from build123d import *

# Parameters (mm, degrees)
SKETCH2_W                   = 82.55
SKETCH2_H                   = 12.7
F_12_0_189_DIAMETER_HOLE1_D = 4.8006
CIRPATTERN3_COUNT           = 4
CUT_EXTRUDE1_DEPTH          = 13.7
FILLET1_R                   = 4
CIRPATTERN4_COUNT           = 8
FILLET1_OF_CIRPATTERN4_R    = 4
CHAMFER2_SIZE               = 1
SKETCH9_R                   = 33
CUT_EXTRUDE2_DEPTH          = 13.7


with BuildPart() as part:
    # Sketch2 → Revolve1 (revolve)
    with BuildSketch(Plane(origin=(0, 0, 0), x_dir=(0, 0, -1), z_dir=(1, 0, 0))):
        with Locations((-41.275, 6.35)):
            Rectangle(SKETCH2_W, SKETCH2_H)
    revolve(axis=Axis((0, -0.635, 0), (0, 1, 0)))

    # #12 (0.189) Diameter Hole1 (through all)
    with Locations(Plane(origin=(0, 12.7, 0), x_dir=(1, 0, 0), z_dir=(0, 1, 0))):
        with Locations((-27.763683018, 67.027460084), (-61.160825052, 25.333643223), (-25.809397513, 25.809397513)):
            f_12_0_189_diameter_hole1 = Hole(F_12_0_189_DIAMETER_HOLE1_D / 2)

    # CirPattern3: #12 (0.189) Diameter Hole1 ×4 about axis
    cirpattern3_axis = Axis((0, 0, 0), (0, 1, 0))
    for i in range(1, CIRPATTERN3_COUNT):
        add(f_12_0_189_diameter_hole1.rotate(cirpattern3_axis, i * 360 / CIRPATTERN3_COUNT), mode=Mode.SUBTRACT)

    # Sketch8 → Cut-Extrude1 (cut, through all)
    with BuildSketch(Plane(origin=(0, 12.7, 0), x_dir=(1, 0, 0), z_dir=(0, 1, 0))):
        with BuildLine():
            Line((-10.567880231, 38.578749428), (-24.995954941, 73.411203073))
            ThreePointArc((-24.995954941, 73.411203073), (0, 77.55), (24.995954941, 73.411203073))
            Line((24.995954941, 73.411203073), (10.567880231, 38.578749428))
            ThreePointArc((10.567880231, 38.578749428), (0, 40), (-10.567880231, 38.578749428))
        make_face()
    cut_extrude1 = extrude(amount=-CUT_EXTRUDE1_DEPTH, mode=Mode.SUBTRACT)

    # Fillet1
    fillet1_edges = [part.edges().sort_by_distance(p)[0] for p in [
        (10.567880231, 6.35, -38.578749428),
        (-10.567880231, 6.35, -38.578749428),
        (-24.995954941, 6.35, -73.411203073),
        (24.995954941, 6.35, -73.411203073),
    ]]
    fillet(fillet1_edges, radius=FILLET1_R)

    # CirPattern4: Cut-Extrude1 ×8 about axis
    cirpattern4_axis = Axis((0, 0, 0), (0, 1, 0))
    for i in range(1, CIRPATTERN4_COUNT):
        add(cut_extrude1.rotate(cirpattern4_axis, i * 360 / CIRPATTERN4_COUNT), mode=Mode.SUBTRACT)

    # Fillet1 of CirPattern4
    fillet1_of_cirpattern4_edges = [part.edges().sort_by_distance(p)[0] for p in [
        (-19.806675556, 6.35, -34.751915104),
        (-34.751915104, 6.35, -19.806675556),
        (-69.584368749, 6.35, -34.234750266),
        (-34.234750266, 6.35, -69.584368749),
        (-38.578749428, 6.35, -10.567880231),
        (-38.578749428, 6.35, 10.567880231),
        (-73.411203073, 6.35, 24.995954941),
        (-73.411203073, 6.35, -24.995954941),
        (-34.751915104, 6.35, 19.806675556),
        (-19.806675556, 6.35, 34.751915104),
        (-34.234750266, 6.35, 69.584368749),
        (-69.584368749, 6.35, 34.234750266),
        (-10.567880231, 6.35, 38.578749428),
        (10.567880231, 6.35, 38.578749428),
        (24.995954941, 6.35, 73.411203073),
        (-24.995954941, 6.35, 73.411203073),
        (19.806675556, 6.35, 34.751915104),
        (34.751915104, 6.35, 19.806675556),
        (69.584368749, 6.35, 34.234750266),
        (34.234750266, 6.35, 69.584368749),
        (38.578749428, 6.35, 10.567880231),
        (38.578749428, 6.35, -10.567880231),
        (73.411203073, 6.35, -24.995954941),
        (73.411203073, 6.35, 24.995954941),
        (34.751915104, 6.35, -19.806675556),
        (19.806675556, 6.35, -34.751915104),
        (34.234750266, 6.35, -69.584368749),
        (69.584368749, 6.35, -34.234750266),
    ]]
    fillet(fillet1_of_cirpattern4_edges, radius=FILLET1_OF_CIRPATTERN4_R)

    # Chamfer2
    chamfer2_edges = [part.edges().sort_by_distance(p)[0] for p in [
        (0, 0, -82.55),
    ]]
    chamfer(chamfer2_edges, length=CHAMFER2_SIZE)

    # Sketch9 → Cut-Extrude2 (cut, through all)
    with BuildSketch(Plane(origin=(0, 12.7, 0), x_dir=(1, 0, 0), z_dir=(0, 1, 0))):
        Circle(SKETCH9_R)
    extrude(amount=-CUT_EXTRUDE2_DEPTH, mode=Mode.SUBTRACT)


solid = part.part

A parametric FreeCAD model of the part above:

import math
import FreeCAD as App
import Part
import Sketcher

V = App.Vector
Q = App.Units.Quantity


def edges_at(feature, points):
    """Names of the edges that pass closest to the given points."""
    edges = feature.Shape.Edges
    near = lambda p: min(range(len(edges)), key=lambda i: edges[i].distToShape(Part.Vertex(*p))[0])
    return sorted({f"Edge{near(p) + 1}" for p in points})

doc = App.newDocument("Part")
params = doc.addObject("Spreadsheet::Sheet", "Params")
for row, (alias, value) in enumerate([
    ("sketch1_width", "12.7 mm"),
    ("sketch1_height", "82.55 mm"),
    ("revolution_angle", "360 deg"),
    ("hole_diameter", "4.8006 mm"),
    ("sketch3_radius", "40 mm"),
    ("sketch3_radius2", "77.55 mm"),
    ("fillet_radius", "4 mm"),
    ("fillet2_radius", "4 mm"),
    ("chamfer_size", "1 mm"),
    ("sketch4_diameter", "66 mm"),
], start=1):
    params.set(f"A{row}", alias)
    params.set(f"B{row}", "=" + value)
    params.setAlias(f"B{row}", alias)

body = doc.addObject("PartDesign::Body", "Body")

# Sketch on YZ plane
sketch1 = doc.addObject("Sketcher::SketchObject", "Sketch")
body.addObject(sketch1)
sketch1.AttachmentSupport = (doc.YZ_Plane, [""])
sketch1.MapMode = "FlatFace"
sketch1.addGeometry(Part.LineSegment(V(13, 83, 0), V(0, 83, 0)), False)
sketch1.addGeometry(Part.LineSegment(V(0, 83, 0), V(0, 0, 0)), False)
sketch1.addGeometry(Part.LineSegment(V(0, 0, 0), V(13, 0, 0)), False)
sketch1.addGeometry(Part.LineSegment(V(13, 0, 0), V(13, 83, 0)), False)
sketch1.addConstraint(Sketcher.Constraint("Coincident", 0, 2, 1, 1))
sketch1.addConstraint(Sketcher.Constraint("Coincident", 1, 2, 2, 1))
sketch1.addConstraint(Sketcher.Constraint("Coincident", 2, 2, 3, 1))
sketch1.addConstraint(Sketcher.Constraint("Coincident", 3, 2, 0, 1))
sketch1.addConstraint(Sketcher.Constraint("Horizontal", 0))
sketch1.addConstraint(Sketcher.Constraint("Vertical", 1))
sketch1.addConstraint(Sketcher.Constraint("Horizontal", 2))
sketch1.addConstraint(Sketcher.Constraint("Vertical", 3))
sketch1.addConstraint(Sketcher.Constraint("Coincident", 1, 2, -1, 1))
sketch1.addConstraint(Sketcher.Constraint("DistanceX", 0, 2, 0, 1, 12.7))
sketch1.addConstraint(Sketcher.Constraint("DistanceY", 1, 2, 1, 1, 82.55))
sketch1.setExpression("Constraints[9]", "Params.sketch1_width")
sketch1.setExpression("Constraints[10]", "Params.sketch1_height")
revolution = doc.addObject("PartDesign::Revolution", "Revolution")
body.addObject(revolution)
revolution.Profile = sketch1
revolution.ReferenceAxis = (sketch1, ["H_Axis"])
revolution.setExpression("Angle", "Params.revolution_angle")

# Sketch on XZ plane
sketch2 = doc.addObject("Sketcher::SketchObject", "Sketch001")
body.addObject(sketch2)
sketch2.AttachmentSupport = (doc.XZ_Plane, [""])
sketch2.MapMode = "FlatFace"
sketch2.AttachmentOffset = App.Placement(V(0, 0, -12.7), App.Rotation())
sketch2.addGeometry(Part.Circle(V(-27.8, -67, 0), V(0, 0, 1), 2.4), False)
sketch2.addGeometry(Part.Circle(V(-61.2, -25.3, 0), V(0, 0, 1), 2.4), False)
sketch2.addGeometry(Part.Circle(V(-25.8, -25.8, 0), V(0, 0, 1), 2.4), False)
sketch2.addConstraint(Sketcher.Constraint("Equal", 0, 1))
sketch2.addConstraint(Sketcher.Constraint("Equal", 1, 2))
sketch2.addConstraint(Sketcher.Constraint("Diameter", 0, 4.8006))
sketch2.addConstraint(Sketcher.Constraint("DistanceY", 0, 3, -1, 1, 67.02746))
sketch2.addConstraint(Sketcher.Constraint("DistanceX", 0, 3, -1, 1, 27.763683))
sketch2.addConstraint(Sketcher.Constraint("DistanceX", 1, 3, -1, 1, 61.160825))
sketch2.addConstraint(Sketcher.Constraint("DistanceY", 1, 3, -1, 1, 25.333643))
sketch2.addConstraint(Sketcher.Constraint("DistanceX", 2, 3, -1, 1, 25.809398))
sketch2.addConstraint(Sketcher.Constraint("DistanceY", 2, 3, -1, 1, 25.809398))
doc.recompute()
hole = doc.addObject("PartDesign::Hole", "Hole")
body.addObject(hole)
hole.Profile = sketch2
hole.ThreadType = "None"
hole.setExpression("Diameter", "Params.hole_diameter")
hole.DepthType = "ThroughAll"
hole.Reversed = True
doc.recompute()

polarpattern = doc.addObject("PartDesign::PolarPattern", "PolarPattern")
body.addObject(polarpattern)
polarpattern.Originals = [hole]
polarpattern.Axis = (doc.Y_Axis, [""])
polarpattern.Angle = 360
polarpattern.Occurrences = 4
body.Tip = polarpattern

# Sketch on XZ plane
sketch3 = doc.addObject("Sketcher::SketchObject", "Sketch002")
body.addObject(sketch3)
sketch3.AttachmentSupport = (doc.XZ_Plane, [""])
sketch3.MapMode = "FlatFace"
sketch3.AttachmentOffset = App.Placement(V(0, 0, -12.7), App.Rotation())
sketch3.addGeometry(Part.LineSegment(V(-25, -73, 0), V(-11, -39, 0)), False)
sketch3.addGeometry(Part.ArcOfCircle(Part.Circle(V(0, 0, 0), V(0, 0, 1), 40), math.radians(-105), math.radians(-75)), False)
sketch3.addGeometry(Part.LineSegment(V(11, -39, 0), V(25, -73, 0)), False)
sketch3.addGeometry(Part.ArcOfCircle(Part.Circle(V(0, 0, 0), V(0, 0, 1), 78), math.radians(-109), math.radians(-71)), False)
sketch3.addConstraint(Sketcher.Constraint("Coincident", 0, 2, 1, 1))
sketch3.addConstraint(Sketcher.Constraint("Coincident", 1, 2, 2, 1))
sketch3.addConstraint(Sketcher.Constraint("Coincident", 2, 2, 3, 2))
sketch3.addConstraint(Sketcher.Constraint("Coincident", 3, 1, 0, 1))
sketch3.addConstraint(Sketcher.Constraint("Coincident", 1, 3, -1, 1))
sketch3.addConstraint(Sketcher.Constraint("Coincident", 3, 3, -1, 1))
sketch3.addConstraint(Sketcher.Constraint("Horizontal", 0, 2, 1, 2))
sketch3.addConstraint(Sketcher.Constraint("Horizontal", 2, 2, 3, 1))
sketch3.addConstraint(Sketcher.Constraint("Radius", 1, 40.0))
sketch3.addConstraint(Sketcher.Constraint("Radius", 3, 77.55))
sketch3.addConstraint(Sketcher.Constraint("Angle", 0, Q("67.5 deg")))
sketch3.addConstraint(Sketcher.Constraint("DistanceX", 0, 2, -1, 1, 10.56788))
sketch3.setExpression("Constraints[8]", "Params.sketch3_radius")
sketch3.setExpression("Constraints[9]", "Params.sketch3_radius2")
pocket1 = doc.addObject("PartDesign::Pocket", "Pocket")
body.addObject(pocket1)
pocket1.Profile = sketch3
pocket1.Type = "ThroughAll"
pocket1.Reversed = True
doc.recompute()

fillet = doc.addObject("PartDesign::Fillet", "Fillet")
body.addObject(fillet)
fillet.Base = (pocket1, edges_at(pocket1, [
    (10.568, 6.35, -38.579),
    (-10.568, 6.35, -38.579),
    (-24.996, 6.35, -73.411),
    (24.996, 6.35, -73.411),
]))
fillet.setExpression("Radius", "Params.fillet_radius")
doc.recompute()

polarpattern2 = doc.addObject("PartDesign::PolarPattern", "PolarPattern001")
body.addObject(polarpattern2)
polarpattern2.Originals = [pocket1]
polarpattern2.Axis = (doc.Y_Axis, [""])
polarpattern2.Angle = 360
polarpattern2.Occurrences = 8
body.Tip = polarpattern2
doc.recompute()

fillet2 = doc.addObject("PartDesign::Fillet", "Fillet001")
body.addObject(fillet2)
fillet2.Base = (polarpattern2, edges_at(polarpattern2, [
    (-19.807, 6.35, -34.752),
    (-34.752, 6.35, -19.807),
    (-69.584, 6.35, -34.235),
    (-34.235, 6.35, -69.584),
    (-38.579, 6.35, -10.568),
    (-38.579, 6.35, 10.568),
    (-73.411, 6.35, 24.996),
    (-73.411, 6.35, -24.996),
    (-34.752, 6.35, 19.807),
    (-19.807, 6.35, 34.752),
    (-34.235, 6.35, 69.584),
    (-69.584, 6.35, 34.235),
    (-10.568, 6.35, 38.579),
    (10.568, 6.35, 38.579),
    (24.996, 6.35, 73.411),
    (-24.996, 6.35, 73.411),
    (19.807, 6.35, 34.752),
    (34.752, 6.35, 19.807),
    (69.584, 6.35, 34.235),
    (34.235, 6.35, 69.584),
    (38.579, 6.35, 10.568),
    (38.579, 6.35, -10.568),
    (73.411, 6.35, -24.996),
    (73.411, 6.35, 24.996),
    (34.752, 6.35, -19.807),
    (19.807, 6.35, -34.752),
    (34.235, 6.35, -69.584),
    (69.584, 6.35, -34.235),
]))
fillet2.setExpression("Radius", "Params.fillet2_radius")
doc.recompute()

chamfer = doc.addObject("PartDesign::Chamfer", "Chamfer")
body.addObject(chamfer)
chamfer.Base = (fillet2, edges_at(fillet2, [(0, 0, -82.55)]))
chamfer.setExpression("Size", "Params.chamfer_size")

# Sketch on XZ plane
sketch4 = doc.addObject("Sketcher::SketchObject", "Sketch003")
body.addObject(sketch4)
sketch4.AttachmentSupport = (doc.XZ_Plane, [""])
sketch4.MapMode = "FlatFace"
sketch4.AttachmentOffset = App.Placement(V(0, 0, -12.7), App.Rotation())
sketch4.addGeometry(Part.Circle(V(0, 0, 0), V(0, 0, 1), 33), False)
sketch4.addConstraint(Sketcher.Constraint("Coincident", 0, 3, -1, 1))
sketch4.addConstraint(Sketcher.Constraint("Diameter", 0, 66.0))
sketch4.setExpression("Constraints[1]", "Params.sketch4_diameter")
pocket2 = doc.addObject("PartDesign::Pocket", "Pocket001")
body.addObject(pocket2)
pocket2.Profile = sketch4
pocket2.Type = "ThroughAll"
pocket2.Reversed = True

doc.recompute()
